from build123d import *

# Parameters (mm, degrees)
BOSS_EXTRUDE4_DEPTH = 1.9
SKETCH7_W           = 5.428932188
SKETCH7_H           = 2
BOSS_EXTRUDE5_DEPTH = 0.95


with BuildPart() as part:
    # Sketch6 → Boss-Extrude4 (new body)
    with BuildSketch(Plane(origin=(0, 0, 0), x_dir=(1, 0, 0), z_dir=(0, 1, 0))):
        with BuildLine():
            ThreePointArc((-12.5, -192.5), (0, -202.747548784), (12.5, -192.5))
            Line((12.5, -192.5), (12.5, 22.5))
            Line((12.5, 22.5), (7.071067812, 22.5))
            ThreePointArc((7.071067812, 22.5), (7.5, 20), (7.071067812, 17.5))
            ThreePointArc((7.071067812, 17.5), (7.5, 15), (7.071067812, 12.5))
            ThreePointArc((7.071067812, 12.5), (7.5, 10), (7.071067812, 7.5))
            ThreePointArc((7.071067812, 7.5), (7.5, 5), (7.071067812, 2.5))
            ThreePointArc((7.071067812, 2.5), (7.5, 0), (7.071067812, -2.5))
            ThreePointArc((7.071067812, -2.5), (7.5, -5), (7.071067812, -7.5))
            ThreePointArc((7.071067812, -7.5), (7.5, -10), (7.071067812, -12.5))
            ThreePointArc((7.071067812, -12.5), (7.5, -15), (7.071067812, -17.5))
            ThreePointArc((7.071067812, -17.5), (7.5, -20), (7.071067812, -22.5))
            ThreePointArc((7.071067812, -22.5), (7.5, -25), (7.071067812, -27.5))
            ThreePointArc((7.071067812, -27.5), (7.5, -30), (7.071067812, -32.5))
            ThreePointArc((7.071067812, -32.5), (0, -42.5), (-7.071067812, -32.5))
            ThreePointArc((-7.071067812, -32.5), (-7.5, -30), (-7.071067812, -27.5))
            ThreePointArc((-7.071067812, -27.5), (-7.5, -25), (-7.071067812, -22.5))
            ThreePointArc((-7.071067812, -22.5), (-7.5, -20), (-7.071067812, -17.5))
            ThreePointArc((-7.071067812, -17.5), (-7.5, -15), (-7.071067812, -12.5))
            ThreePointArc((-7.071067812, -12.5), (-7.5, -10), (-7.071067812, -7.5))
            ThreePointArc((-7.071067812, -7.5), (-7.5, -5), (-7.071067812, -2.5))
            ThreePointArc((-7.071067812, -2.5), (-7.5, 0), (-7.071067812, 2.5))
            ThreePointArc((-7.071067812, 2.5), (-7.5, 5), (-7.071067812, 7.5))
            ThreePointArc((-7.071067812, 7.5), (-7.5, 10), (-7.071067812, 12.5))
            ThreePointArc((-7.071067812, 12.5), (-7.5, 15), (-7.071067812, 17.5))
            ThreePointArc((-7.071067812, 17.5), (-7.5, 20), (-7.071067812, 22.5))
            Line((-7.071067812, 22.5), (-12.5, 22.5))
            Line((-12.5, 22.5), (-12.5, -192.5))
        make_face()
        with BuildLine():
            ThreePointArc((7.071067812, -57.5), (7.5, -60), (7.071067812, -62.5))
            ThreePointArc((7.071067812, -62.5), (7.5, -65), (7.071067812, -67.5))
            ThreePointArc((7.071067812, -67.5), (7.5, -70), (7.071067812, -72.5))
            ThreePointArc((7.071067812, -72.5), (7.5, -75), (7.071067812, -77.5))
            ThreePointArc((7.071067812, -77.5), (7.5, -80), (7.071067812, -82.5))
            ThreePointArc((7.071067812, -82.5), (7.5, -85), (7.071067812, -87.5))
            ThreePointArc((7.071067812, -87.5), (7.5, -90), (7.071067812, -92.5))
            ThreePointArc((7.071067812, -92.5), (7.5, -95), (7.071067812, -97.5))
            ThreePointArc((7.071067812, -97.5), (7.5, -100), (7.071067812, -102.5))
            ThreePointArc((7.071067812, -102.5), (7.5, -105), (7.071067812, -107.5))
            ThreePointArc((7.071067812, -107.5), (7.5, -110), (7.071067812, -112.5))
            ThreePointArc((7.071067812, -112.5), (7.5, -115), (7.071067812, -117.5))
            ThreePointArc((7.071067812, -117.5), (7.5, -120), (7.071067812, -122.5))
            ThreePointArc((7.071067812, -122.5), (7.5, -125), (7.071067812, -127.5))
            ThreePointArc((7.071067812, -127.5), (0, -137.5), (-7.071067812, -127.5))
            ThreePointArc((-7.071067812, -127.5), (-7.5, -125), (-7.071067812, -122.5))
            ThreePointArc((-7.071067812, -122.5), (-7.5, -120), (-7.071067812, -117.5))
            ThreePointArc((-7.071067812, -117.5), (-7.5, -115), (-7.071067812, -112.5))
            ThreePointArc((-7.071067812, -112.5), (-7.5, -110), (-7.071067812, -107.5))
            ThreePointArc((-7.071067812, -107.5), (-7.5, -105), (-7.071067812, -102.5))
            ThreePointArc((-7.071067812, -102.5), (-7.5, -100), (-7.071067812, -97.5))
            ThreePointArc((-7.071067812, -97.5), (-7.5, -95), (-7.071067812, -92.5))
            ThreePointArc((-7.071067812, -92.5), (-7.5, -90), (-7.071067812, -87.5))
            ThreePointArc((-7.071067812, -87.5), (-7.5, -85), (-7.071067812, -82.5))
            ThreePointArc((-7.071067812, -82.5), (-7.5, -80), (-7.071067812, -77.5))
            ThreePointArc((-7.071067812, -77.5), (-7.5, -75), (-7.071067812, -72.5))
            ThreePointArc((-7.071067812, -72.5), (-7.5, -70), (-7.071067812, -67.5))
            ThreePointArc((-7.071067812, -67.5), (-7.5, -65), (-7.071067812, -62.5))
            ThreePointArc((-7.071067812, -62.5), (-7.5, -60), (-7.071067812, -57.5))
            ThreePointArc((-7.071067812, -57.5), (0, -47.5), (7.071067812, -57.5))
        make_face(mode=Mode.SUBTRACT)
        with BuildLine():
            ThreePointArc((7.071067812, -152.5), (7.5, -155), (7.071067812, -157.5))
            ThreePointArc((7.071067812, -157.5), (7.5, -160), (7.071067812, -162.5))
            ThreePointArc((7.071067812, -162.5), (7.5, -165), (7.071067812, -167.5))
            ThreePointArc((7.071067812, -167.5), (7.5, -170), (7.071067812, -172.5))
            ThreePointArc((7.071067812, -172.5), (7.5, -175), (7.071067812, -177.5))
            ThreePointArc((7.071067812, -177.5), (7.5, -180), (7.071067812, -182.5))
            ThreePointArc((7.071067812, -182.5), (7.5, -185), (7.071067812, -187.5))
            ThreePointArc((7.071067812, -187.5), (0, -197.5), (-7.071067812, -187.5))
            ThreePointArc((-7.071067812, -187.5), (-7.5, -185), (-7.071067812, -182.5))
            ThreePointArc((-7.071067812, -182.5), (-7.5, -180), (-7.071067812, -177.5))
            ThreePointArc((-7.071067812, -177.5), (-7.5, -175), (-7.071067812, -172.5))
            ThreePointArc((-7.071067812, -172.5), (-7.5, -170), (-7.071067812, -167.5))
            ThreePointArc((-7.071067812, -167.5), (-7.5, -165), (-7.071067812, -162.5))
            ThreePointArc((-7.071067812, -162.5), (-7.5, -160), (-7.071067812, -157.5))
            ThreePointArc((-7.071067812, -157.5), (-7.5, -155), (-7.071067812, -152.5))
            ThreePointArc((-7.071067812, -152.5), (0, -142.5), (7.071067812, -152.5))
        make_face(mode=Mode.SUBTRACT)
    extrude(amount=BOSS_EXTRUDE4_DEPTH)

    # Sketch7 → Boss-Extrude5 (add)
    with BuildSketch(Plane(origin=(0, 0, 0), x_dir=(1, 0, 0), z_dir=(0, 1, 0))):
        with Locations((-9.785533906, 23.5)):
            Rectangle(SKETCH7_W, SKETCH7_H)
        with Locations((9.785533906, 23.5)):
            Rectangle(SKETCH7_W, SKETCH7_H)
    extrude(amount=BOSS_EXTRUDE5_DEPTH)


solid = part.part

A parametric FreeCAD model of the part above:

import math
import FreeCAD as App
import Part
import Sketcher

V = App.Vector
Q = App.Units.Quantity

doc = App.newDocument("Part")
body = doc.addObject("PartDesign::Body", "Body")

# Sketch on XZ plane
sketch1 = body.newObject("Sketcher::SketchObject", "Sketch")
sketch1.AttachmentSupport = (doc.getObject("XZ_Plane"), [""])
sketch1.MapMode = "FlatFace"
sketch1.addGeometry(Part.ArcOfCircle(Part.Circle(V(0, 190, 0), V(0, 0, 1), 12.747549), math.radians(11.309932), math.radians(168.690068)), False)
sketch1.addGeometry(Part.LineSegment(V(12.5, 192.5, 0), V(12.5, -22.5, 0)), False)
sketch1.addGeometry(Part.LineSegment(V(12.5, -22.5, 0), V(7.071068, -22.5, 0)), False)
sketch1.addGeometry(Part.ArcOfCircle(Part.Circle(V(0, -20, 0), V(0, 0, 1), 7.5), math.radians(-19.471221), math.radians(19.471221)), False)
sketch1.addGeometry(Part.ArcOfCircle(Part.Circle(V(0, -15, 0), V(0, 0, 1), 7.5), math.radians(-19.471221), math.radians(19.471221)), False)
sketch1.addGeometry(Part.ArcOfCircle(Part.Circle(V(0, -10, 0), V(0, 0, 1), 7.5), math.radians(-19.471221), math.radians(19.471221)), False)
sketch1.addGeometry(Part.ArcOfCircle(Part.Circle(V(0, -5, 0), V(0, 0, 1), 7.5), math.radians(-19.471221), math.radians(19.471221)), False)
sketch1.addGeometry(Part.ArcOfCircle(Part.Circle(V(0, 0, 0), V(0, 0, 1), 7.5), math.radians(-19.471221), math.radians(19.471221)), False)
sketch1.addGeometry(Part.ArcOfCircle(Part.Circle(V(0, 5, 0), V(0, 0, 1), 7.5), math.radians(-19.471221), math.radians(19.471221)), False)
sketch1.addGeometry(Part.ArcOfCircle(Part.Circle(V(0, 10, 0), V(0, 0, 1), 7.5), math.radians(-19.471221), math.radians(19.471221)), False)
sketch1.addGeometry(Part.ArcOfCircle(Part.Circle(V(0, 15, 0), V(0, 0, 1), 7.5), math.radians(-19.471221), math.radians(19.471221)), False)
sketch1.addGeometry(Part.ArcOfCircle(Part.Circle(V(0, 20, 0), V(0, 0, 1), 7.5), math.radians(-19.471221), math.radians(19.471221)), False)
sketch1.addGeometry(Part.ArcOfCircle(Part.Circle(V(0, 25, 0), V(0, 0, 1), 7.5), math.radians(-19.471221), math.radians(19.471221)), False)
sketch1.addGeometry(Part.ArcOfCircle(Part.Circle(V(0, 30, 0), V(0, 0, 1), 7.5), math.radians(-19.471221), math.radians(19.471221)), False)
sketch1.addGeometry(Part.ArcOfCircle(Part.Circle(V(0, 35, 0), V(0, 0, 1), 7.5), math.radians(-19.471221), math.radians(199.471221)), False)
sketch1.addGeometry(Part.ArcOfCircle(Part.Circle(V(0, 30, 0), V(0, 0, 1), 7.5), math.radians(160.528779), math.radians(199.471221)), False)
sketch1.addGeometry(Part.ArcOfCircle(Part.Circle(V(0, 25, 0), V(0, 0, 1), 7.5), math.radians(160.528779), math.radians(199.471221)), False)
sketch1.addGeometry(Part.ArcOfCircle(Part.Circle(V(0, 20, 0), V(0, 0, 1), 7.5), math.radians(160.528779), math.radians(199.471221)), False)
sketch1.addGeometry(Part.ArcOfCircle(Part.Circle(V(0, 15, 0), V(0, 0, 1), 7.5), math.radians(160.528779), math.radians(199.471221)), False)
sketch1.addGeometry(Part.ArcOfCircle(Part.Circle(V(0, 10, 0), V(0, 0, 1), 7.5), math.radians(160.528779), math.radians(199.471221)), False)
sketch1.addGeometry(Part.ArcOfCircle(Part.Circle(V(0, 5, 0), V(0, 0, 1), 7.5), math.radians(160.528779), math.radians(199.471221)), False)
sketch1.addGeometry(Part.ArcOfCircle(Part.Circle(V(0, 0, 0), V(0, 0, 1), 7.5), math.radians(160.528779), math.radians(199.471221)), False)
sketch1.addGeometry(Part.ArcOfCircle(Part.Circle(V(0, -5, 0), V(0, 0, 1), 7.5), math.radians(160.528779), math.radians(199.471221)), False)
sketch1.addGeometry(Part.ArcOfCircle(Part.Circle(V(0, -10, 0), V(0, 0, 1), 7.5), math.radians(160.528779), math.radians(199.471221)), False)
sketch1.addGeometry(Part.ArcOfCircle(Part.Circle(V(0, -15, 0), V(0, 0, 1), 7.5), math.radians(160.528779), math.radians(199.471221)), False)
sketch1.addGeometry(Part.ArcOfCircle(Part.Circle(V(0, -20, 0), V(0, 0, 1), 7.5), math.radians(160.528779), math.radians(199.471221)), False)
sketch1.addGeometry(Part.LineSegment(V(-7.071068, -22.5, 0), V(-12.5, -22.5, 0)), False)
sketch1.addGeometry(Part.LineSegment(V(-12.5, -22.5, 0), V(-12.5, 192.5, 0)), False)
sketch1.addGeometry(Part.ArcOfCircle(Part.Circle(V(0, 150, 0), V(0, 0, 1), 7.5), math.radians(160.528779), math.radians(379.471221)), False)
sketch1.addGeometry(Part.ArcOfCircle(Part.Circle(V(0, 155, 0), V(0, 0, 1), 7.5), math.radians(-19.471221), math.radians(19.471221)), False)
sketch1.addGeometry(Part.ArcOfCircle(Part.Circle(V(0, 160, 0), V(0, 0, 1), 7.5), math.radians(-19.471221), math.radians(19.471221)), False)
sketch1.addGeometry(Part.ArcOfCircle(Part.Circle(V(0, 165, 0), V(0, 0, 1), 7.5), math.radians(-19.471221), math.radians(19.471221)), False)
sketch1.addGeometry(Part.ArcOfCircle(Part.Circle(V(0, 170, 0), V(0, 0, 1), 7.5), math.radians(-19.471221), math.radians(19.471221)), False)
sketch1.addGeometry(Part.ArcOfCircle(Part.Circle(V(0, 175, 0), V(0, 0, 1), 7.5), math.radians(-19.471221), math.radians(19.471221)), False)
sketch1.addGeometry(Part.ArcOfCircle(Part.Circle(V(0, 180, 0), V(0, 0, 1), 7.5), math.radians(-19.471221), math.radians(19.471221)), False)
sketch1.addGeometry(Part.ArcOfCircle(Part.Circle(V(0, 185, 0), V(0, 0, 1), 7.5), math.radians(-19.471221), math.radians(19.471221)), False)
sketch1.addGeometry(Part.ArcOfCircle(Part.Circle(V(0, 190, 0), V(0, 0, 1), 7.5), math.radians(-19.471221), math.radians(199.471221)), False)
sketch1.addGeometry(Part.ArcOfCircle(Part.Circle(V(0, 185, 0), V(0, 0, 1), 7.5), math.radians(160.528779), math.radians(199.471221)), False)
sketch1.addGeometry(Part.ArcOfCircle(Part.Circle(V(0, 180, 0), V(0, 0, 1), 7.5), math.radians(160.528779), math.radians(199.471221)), False)
sketch1.addGeometry(Part.ArcOfCircle(Part.Circle(V(0, 175, 0), V(0, 0, 1), 7.5), math.radians(160.528779), math.radians(199.471221)), False)
sketch1.addGeometry(Part.ArcOfCircle(Part.Circle(V(0, 170, 0), V(0, 0, 1), 7.5), math.radians(160.528779), math.radians(199.471221)), False)
sketch1.addGeometry(Part.ArcOfCircle(Part.Circle(V(0, 165, 0), V(0, 0, 1), 7.5), math.radians(160.528779), math.radians(199.471221)), False)
sketch1.addGeometry(Part.ArcOfCircle(Part.Circle(V(0, 160, 0), V(0, 0, 1), 7.5), math.radians(160.528779), math.radians(199.471221)), False)
sketch1.addGeometry(Part.ArcOfCircle(Part.Circle(V(0, 155, 0), V(0, 0, 1), 7.5), math.radians(160.528779), math.radians(199.471221)), False)
sketch1.addGeometry(Part.ArcOfCircle(Part.Circle(V(0, 55, 0), V(0, 0, 1), 7.5), math.radians(160.528779), math.radians(379.471221)), False)
sketch1.addGeometry(Part.ArcOfCircle(Part.Circle(V(0, 60, 0), V(0, 0, 1), 7.5), math.radians(-19.471221), math.radians(19.471221)), False)
sketch1.addGeometry(Part.ArcOfCircle(Part.Circle(V(0, 65, 0), V(0, 0, 1), 7.5), math.radians(-19.471221), math.radians(19.471221)), False)
sketch1.addGeometry(Part.ArcOfCircle(Part.Circle(V(0, 70, 0), V(0, 0, 1), 7.5), math.radians(-19.471221), math.radians(19.471221)), False)
sketch1.addGeometry(Part.ArcOfCircle(Part.Circle(V(0, 75, 0), V(0, 0, 1), 7.5), math.radians(-19.471221), math.radians(19.471221)), False)
sketch1.addGeometry(Part.ArcOfCircle(Part.Circle(V(0, 80, 0), V(0, 0, 1), 7.5), math.radians(-19.471221), math.radians(19.471221)), False)
sketch1.addGeometry(Part.ArcOfCircle(Part.Circle(V(0, 85, 0), V(0, 0, 1), 7.5), math.radians(-19.471221), math.radians(19.471221)), False)
sketch1.addGeometry(Part.ArcOfCircle(Part.Circle(V(0, 90, 0), V(0, 0, 1), 7.5), math.radians(-19.471221), math.radians(19.471221)), False)
sketch1.addGeometry(Part.ArcOfCircle(Part.Circle(V(0, 95, 0), V(0, 0, 1), 7.5), math.radians(-19.471221), math.radians(19.471221)), False)
sketch1.addGeometry(Part.ArcOfCircle(Part.Circle(V(0, 100, 0), V(0, 0, 1), 7.5), math.radians(-19.471221), math.radians(19.471221)), False)
sketch1.addGeometry(Part.ArcOfCircle(Part.Circle(V(0, 105, 0), V(0, 0, 1), 7.5), math.radians(-19.471221), math.radians(19.471221)), False)
sketch1.addGeometry(Part.ArcOfCircle(Part.Circle(V(0, 110, 0), V(0, 0, 1), 7.5), math.radians(-19.471221), math.radians(19.471221)), False)
sketch1.addGeometry(Part.ArcOfCircle(Part.Circle(V(0, 115, 0), V(0, 0, 1), 7.5), math.radians(-19.471221), math.radians(19.471221)), False)
sketch1.addGeometry(Part.ArcOfCircle(Part.Circle(V(0, 120, 0), V(0, 0, 1), 7.5), math.radians(-19.471221), math.radians(19.471221)), False)
sketch1.addGeometry(Part.ArcOfCircle(Part.Circle(V(0, 125, 0), V(0, 0, 1), 7.5), math.radians(-19.471221), math.radians(19.471221)), False)
sketch1.addGeometry(Part.ArcOfCircle(Part.Circle(V(0, 130, 0), V(0, 0, 1), 7.5), math.radians(-19.471221), math.radians(199.471221)), False)
sketch1.addGeometry(Part.ArcOfCircle(Part.Circle(V(0, 125, 0), V(0, 0, 1), 7.5), math.radians(160.528779), math.radians(199.471221)), False)
sketch1.addGeometry(Part.ArcOfCircle(Part.Circle(V(0, 120, 0), V(0, 0, 1), 7.5), math.radians(160.528779), math.radians(199.471221)), False)
sketch1.addGeometry(Part.ArcOfCircle(Part.Circle(V(0, 115, 0), V(0, 0, 1), 7.5), math.radians(160.528779), math.radians(199.471221)), False)
sketch1.addGeometry(Part.ArcOfCircle(Part.Circle(V(0, 110, 0), V(0, 0, 1), 7.5), math.radians(160.528779), math.radians(199.471221)), False)
sketch1.addGeometry(Part.ArcOfCircle(Part.Circle(V(0, 105, 0), V(0, 0, 1), 7.5), math.radians(160.528779), math.radians(199.471221)), False)
sketch1.addGeometry(Part.ArcOfCircle(Part.Circle(V(0, 100, 0), V(0, 0, 1), 7.5), math.radians(160.528779), math.radians(199.471221)), False)
sketch1.addGeometry(Part.ArcOfCircle(Part.Circle(V(0, 95, 0), V(0, 0, 1), 7.5), math.radians(160.528779), math.radians(199.471221)), False)
sketch1.addGeometry(Part.ArcOfCircle(Part.Circle(V(0, 90, 0), V(0, 0, 1), 7.5), math.radians(160.528779), math.radians(199.471221)), False)
sketch1.addGeometry(Part.ArcOfCircle(Part.Circle(V(0, 85, 0), V(0, 0, 1), 7.5), math.radians(160.528779), math.radians(199.471221)), False)
sketch1.addGeometry(Part.ArcOfCircle(Part.Circle(V(0, 80, 0), V(0, 0, 1), 7.5), math.radians(160.528779), math.radians(199.471221)), False)
sketch1.addGeometry(Part.ArcOfCircle(Part.Circle(V(0, 75, 0), V(0, 0, 1), 7.5), math.radians(160.528779), math.radians(199.471221)), False)
sketch1.addGeometry(Part.ArcOfCircle(Part.Circle(V(0, 70, 0), V(0, 0, 1), 7.5), math.radians(160.528779), math.radians(199.471221)), False)
sketch1.addGeometry(Part.ArcOfCircle(Part.Circle(V(0, 65, 0), V(0, 0, 1), 7.5), math.radians(160.528779), math.radians(199.471221)), False)
sketch1.addGeometry(Part.ArcOfCircle(Part.Circle(V(0, 60, 0), V(0, 0, 1), 7.5), math.radians(160.528779), math.radians(199.471221)), False)
sketch1.addConstraint(Sketcher.Constraint("Coincident", 0, 1, 1, 1))
sketch1.addConstraint(Sketcher.Constraint("Coincident", 1, 2, 2, 1))
sketch1.addConstraint(Sketcher.Constraint("Coincident", 2, 2, 3, 1))
sketch1.addConstraint(Sketcher.Constraint("Coincident", 3, 2, 4, 1))
sketch1.addConstraint(Sketcher.Constraint("Coincident", 4, 2, 5, 1))
sketch1.addConstraint(Sketcher.Constraint("Coincident", 5, 2, 6, 1))
sketch1.addConstraint(Sketcher.Constraint("Coincident", 6, 2, 7, 1))
sketch1.addConstraint(Sketcher.Constraint("Coincident", 7, 2, 8, 1))
sketch1.addConstraint(Sketcher.Constraint("Coincident", 8, 2, 9, 1))
sketch1.addConstraint(Sketcher.Constraint("Coincident", 9, 2, 10, 1))
sketch1.addConstraint(Sketcher.Constraint("Coincident", 10, 2, 11, 1))
sketch1.addConstraint(Sketcher.Constraint("Coincident", 11, 2, 12, 1))
sketch1.addConstraint(Sketcher.Constraint("Coincident", 12, 2, 13, 1))
sketch1.addConstraint(Sketcher.Constraint("Coincident", 13, 2, 14, 1))
sketch1.addConstraint(Sketcher.Constraint("Coincident", 14, 2, 15, 1))
sketch1.addConstraint(Sketcher.Constraint("Coincident", 15, 2, 16, 1))
sketch1.addConstraint(Sketcher.Constraint("Coincident", 16, 2, 17, 1))
sketch1.addConstraint(Sketcher.Constraint("Coincident", 17, 2, 18, 1))
sketch1.addConstraint(Sketcher.Constraint("Coincident", 18, 2, 19, 1))
sketch1.addConstraint(Sketcher.Constraint("Coincident", 19, 2, 20, 1))
sketch1.addConstraint(Sketcher.Constraint("Coincident", 20, 2, 21, 1))
sketch1.addConstraint(Sketcher.Constraint("Coincident", 21, 2, 22, 1))
sketch1.addConstraint(Sketcher.Constraint("Coincident", 22, 2, 23, 1))
sketch1.addConstraint(Sketcher.Constraint("Coincident", 23, 2, 24, 1))
sketch1.addConstraint(Sketcher.Constraint("Coincident", 24, 2, 25, 1))
sketch1.addConstraint(Sketcher.Constraint("Coincident", 25, 2, 26, 1))
sketch1.addConstraint(Sketcher.Constraint("Coincident", 26, 2, 27, 1))
sketch1.addConstraint(Sketcher.Constraint("Coincident", 27, 2, 0, 2))
sketch1.addConstraint(Sketcher.Constraint("Coincident", 28, 2, 29, 1))
sketch1.addConstraint(Sketcher.Constraint("Coincident", 29, 2, 30, 1))
sketch1.addConstraint(Sketcher.Constraint("Coincident", 30, 2, 31, 1))
sketch1.addConstraint(Sketcher.Constraint("Coincident", 31, 2, 32, 1))
sketch1.addConstraint(Sketcher.Constraint("Coincident", 32, 2, 33, 1))
sketch1.addConstraint(Sketcher.Constraint("Coincident", 33, 2, 34, 1))
sketch1.addConstraint(Sketcher.Constraint("Coincident", 34, 2, 35, 1))
sketch1.addConstraint(Sketcher.Constraint("Coincident", 35, 2, 36, 1))
sketch1.addConstraint(Sketcher.Constraint("Coincident", 36, 2, 37, 1))
sketch1.addConstraint(Sketcher.Constraint("Coincident", 37, 2, 38, 1))
sketch1.addConstraint(Sketcher.Constraint("Coincident", 38, 2, 39, 1))
sketch1.addConstraint(Sketcher.Constraint("Coincident", 39, 2, 40, 1))
sketch1.addConstraint(Sketcher.Constraint("Coincident", 40, 2, 41, 1))
sketch1.addConstraint(Sketcher.Constraint("Coincident", 41, 2, 42, 1))
sketch1.addConstraint(Sketcher.Constraint("Coincident", 42, 2, 43, 1))
sketch1.addConstraint(Sketcher.Constraint("Coincident", 43, 2, 28, 1))
sketch1.addConstraint(Sketcher.Constraint("Coincident", 44, 2, 45, 1))
sketch1.addConstraint(Sketcher.Constraint("Coincident", 45, 2, 46, 1))
sketch1.addConstraint(Sketcher.Constraint("Coincident", 46, 2, 47, 1))
sketch1.addConstraint(Sketcher.Constraint("Coincident", 47, 2, 48, 1))
sketch1.addConstraint(Sketcher.Constraint("Coincident", 48, 2, 49, 1))
sketch1.addConstraint(Sketcher.Constraint("Coincident", 49, 2, 50, 1))
sketch1.addConstraint(Sketcher.Constraint("Coincident", 50, 2, 51, 1))
sketch1.addConstraint(Sketcher.Constraint("Coincident", 51, 2, 52, 1))
sketch1.addConstraint(Sketcher.Constraint("Coincident", 52, 2, 53, 1))
sketch1.addConstraint(Sketcher.Constraint("Coincident", 53, 2, 54, 1))
sketch1.addConstraint(Sketcher.Constraint("Coincident", 54, 2, 55, 1))
sketch1.addConstraint(Sketcher.Constraint("Coincident", 55, 2, 56, 1))
sketch1.addConstraint(Sketcher.Constraint("Coincident", 56, 2, 57, 1))
sketch1.addConstraint(Sketcher.Constraint("Coincident", 57, 2, 58, 1))
sketch1.addConstraint(Sketcher.Constraint("Coincident", 58, 2, 59, 1))
sketch1.addConstraint(Sketcher.Constraint("Coincident", 59, 2, 60, 1))
sketch1.addConstraint(Sketcher.Constraint("Coincident", 60, 2, 61, 1))
sketch1.addConstraint(Sketcher.Constraint("Coincident", 61, 2, 62, 1))
sketch1.addConstraint(Sketcher.Constraint("Coincident", 62, 2, 63, 1))
sketch1.addConstraint(Sketcher.Constraint("Coincident", 63, 2, 64, 1))
sketch1.addConstraint(Sketcher.Constraint("Coincident", 64, 2, 65, 1))
sketch1.addConstraint(Sketcher.Constraint("Coincident", 65, 2, 66, 1))
sketch1.addConstraint(Sketcher.Constraint("Coincident", 66, 2, 67, 1))
sketch1.addConstraint(Sketcher.Constraint("Coincident", 67, 2, 68, 1))
sketch1.addConstraint(Sketcher.Constraint("Coincident", 68, 2, 69, 1))
sketch1.addConstraint(Sketcher.Constraint("Coincident", 69, 2, 70, 1))
sketch1.addConstraint(Sketcher.Constraint("Coincident", 70, 2, 71, 1))
sketch1.addConstraint(Sketcher.Constraint("Coincident", 71, 2, 72, 1))
sketch1.addConstraint(Sketcher.Constraint("Coincident", 72, 2, 73, 1))
sketch1.addConstraint(Sketcher.Constraint("Coincident", 73, 2, 44, 1))
sketch1.addConstraint(Sketcher.Constraint("Vertical", 1))
sketch1.addConstraint(Sketcher.Constraint("Horizontal", 2))
sketch1.addConstraint(Sketcher.Constraint("Horizontal", 26))
sketch1.addConstraint(Sketcher.Constraint("Vertical", 27))
sketch1.addConstraint(Sketcher.Constraint("Coincident", 7, 3, -1, 1))
sketch1.addConstraint(Sketcher.Constraint("Coincident", 21, 3, -1, 1))
sketch1.addConstraint(Sketcher.Constraint("Coincident", 15, 3, 13, 3))
sketch1.addConstraint(Sketcher.Constraint("Coincident", 16, 3, 12, 3))
sketch1.addConstraint(Sketcher.Constraint("Coincident", 17, 3, 11, 3))
sketch1.addConstraint(Sketcher.Constraint("Coincident", 18, 3, 10, 3))
sketch1.addConstraint(Sketcher.Constraint("Coincident", 19, 3, 9, 3))
sketch1.addConstraint(Sketcher.Constraint("Coincident", 20, 3, 8, 3))
sketch1.addConstraint(Sketcher.Constraint("Coincident", 22, 3, 6, 3))
sketch1.addConstraint(Sketcher.Constraint("Coincident", 23, 3, 5, 3))
sketch1.addConstraint(Sketcher.Constraint("Coincident", 24, 3, 4, 3))
sketch1.addConstraint(Sketcher.Constraint("Coincident", 25, 3, 3, 3))
sketch1.addConstraint(Sketcher.Constraint("Coincident", 36, 3, 0, 3))
sketch1.addConstraint(Sketcher.Constraint("Coincident", 37, 3, 35, 3))
sketch1.addConstraint(Sketcher.Constraint("Coincident", 38, 3, 34, 3))
sketch1.addConstraint(Sketcher.Constraint("Coincident", 39, 3, 33, 3))
sketch1.addConstraint(Sketcher.Constraint("Coincident", 40, 3, 32, 3))
sketch1.addConstraint(Sketcher.Constraint("Coincident", 41, 3, 31, 3))
sketch1.addConstraint(Sketcher.Constraint("Coincident", 42, 3, 30, 3))
sketch1.addConstraint(Sketcher.Constraint("Coincident", 43, 3, 29, 3))
sketch1.addConstraint(Sketcher.Constraint("Coincident", 60, 3, 58, 3))
sketch1.addConstraint(Sketcher.Constraint("Coincident", 61, 3, 57, 3))
sketch1.addConstraint(Sketcher.Constraint("Coincident", 62, 3, 56, 3))
sketch1.addConstraint(Sketcher.Constraint("Coincident", 63, 3, 55, 3))
sketch1.addConstraint(Sketcher.Constraint("Coincident", 64, 3, 54, 3))
sketch1.addConstraint(Sketcher.Constraint("Coincident", 65, 3, 53, 3))
sketch1.addConstraint(Sketcher.Constraint("Coincident", 66, 3, 52, 3))
sketch1.addConstraint(Sketcher.Constraint("Coincident", 67, 3, 51, 3))
sketch1.addConstraint(Sketcher.Constraint("Coincident", 68, 3, 50, 3))
sketch1.addConstraint(Sketcher.Constraint("Coincident", 69, 3, 49, 3))
sketch1.addConstraint(Sketcher.Constraint("Coincident", 70, 3, 48, 3))
sketch1.addConstraint(Sketcher.Constraint("Coincident", 71, 3, 47, 3))
sketch1.addConstraint(Sketcher.Constraint("Coincident", 72, 3, 46, 3))
sketch1.addConstraint(Sketcher.Constraint("Coincident", 73, 3, 45, 3))
sketch1.addConstraint(Sketcher.Constraint("Equal", 3, 4))
sketch1.addConstraint(Sketcher.Constraint("Equal", 4, 5))
sketch1.addConstraint(Sketcher.Constraint("Equal", 5, 6))
sketch1.addConstraint(Sketcher.Constraint("Equal", 6, 7))
sketch1.addConstraint(Sketcher.Constraint("Equal", 7, 8))
sketch1.addConstraint(Sketcher.Constraint("Equal", 8, 9))
sketch1.addConstraint(Sketcher.Constraint("Equal", 9, 10))
sketch1.addConstraint(Sketcher.Constraint("Equal", 10, 11))
sketch1.addConstraint(Sketcher.Constraint("Equal", 11, 12))
sketch1.addConstraint(Sketcher.Constraint("Equal", 12, 13))
sketch1.addConstraint(Sketcher.Constraint("Equal", 13, 14))
sketch1.addConstraint(Sketcher.Constraint("Equal", 14, 15))
sketch1.addConstraint(Sketcher.Constraint("Equal", 15, 16))
sketch1.addConstraint(Sketcher.Constraint("Equal", 16, 17))
sketch1.addConstraint(Sketcher.Constraint("Equal", 17, 18))
sketch1.addConstraint(Sketcher.Constraint("Equal", 18, 19))
sketch1.addConstraint(Sketcher.Constraint("Equal", 19, 20))
sketch1.addConstraint(Sketcher.Constraint("Equal", 20, 21))
sketch1.addConstraint(Sketcher.Constraint("Equal", 21, 22))
sketch1.addConstraint(Sketcher.Constraint("Equal", 22, 23))
sketch1.addConstraint(Sketcher.Constraint("Equal", 23, 24))
sketch1.addConstraint(Sketcher.Constraint("Equal", 24, 25))
sketch1.addConstraint(Sketcher.Constraint("Equal", 25, 28))
sketch1.addConstraint(Sketcher.Constraint("Equal", 28, 29))
sketch1.addConstraint(Sketcher.Constraint("Equal", 29, 30))
sketch1.addConstraint(Sketcher.Constraint("Equal", 30, 31))
sketch1.addConstraint(Sketcher.Constraint("Equal", 31, 32))
sketch1.addConstraint(Sketcher.Constraint("Equal", 32, 33))
sketch1.addConstraint(Sketcher.Constraint("Equal", 33, 34))
sketch1.addConstraint(Sketcher.Constraint("Equal", 34, 35))
sketch1.addConstraint(Sketcher.Constraint("Equal", 35, 36))
sketch1.addConstraint(Sketcher.Constraint("Equal", 36, 37))
sketch1.addConstraint(Sketcher.Constraint("Equal", 37, 38))
sketch1.addConstraint(Sketcher.Constraint("Equal", 38, 39))
sketch1.addConstraint(Sketcher.Constraint("Equal", 39, 40))
sketch1.addConstraint(Sketcher.Constraint("Equal", 40, 41))
sketch1.addConstraint(Sketcher.Constraint("Equal", 41, 42))
sketch1.addConstraint(Sketcher.Constraint("Equal", 42, 43))
sketch1.addConstraint(Sketcher.Constraint("Equal", 43, 44))
sketch1.addConstraint(Sketcher.Constraint("Equal", 44, 45))
sketch1.addConstraint(Sketcher.Constraint("Equal", 45, 46))
sketch1.addConstraint(Sketcher.Constraint("Equal", 46, 47))
sketch1.addConstraint(Sketcher.Constraint("Equal", 47, 48))
sketch1.addConstraint(Sketcher.Constraint("Equal", 48, 49))
sketch1.addConstraint(Sketcher.Constraint("Equal", 49, 50))
sketch1.addConstraint(Sketcher.Constraint("Equal", 50, 51))
sketch1.addConstraint(Sketcher.Constraint("Equal", 51, 52))
sketch1.addConstraint(Sketcher.Constraint("Equal", 52, 53))
sketch1.addConstraint(Sketcher.Constraint("Equal", 53, 54))
sketch1.addConstraint(Sketcher.Constraint("Equal", 54, 55))
sketch1.addConstraint(Sketcher.Constraint("Equal", 55, 56))
sketch1.addConstraint(Sketcher.Constraint("Equal", 56, 57))
sketch1.addConstraint(Sketcher.Constraint("Equal", 57, 58))
sketch1.addConstraint(Sketcher.Constraint("Equal", 58, 59))
sketch1.addConstraint(Sketcher.Constraint("Equal", 59, 60))
sketch1.addConstraint(Sketcher.Constraint("Equal", 60, 61))
sketch1.addConstraint(Sketcher.Constraint("Equal", 61, 62))
sketch1.addConstraint(Sketcher.Constraint("Equal", 62, 63))
sketch1.addConstraint(Sketcher.Constraint("Equal", 63, 64))
sketch1.addConstraint(Sketcher.Constraint("Equal", 64, 65))
sketch1.addConstraint(Sketcher.Constraint("Equal", 65, 66))
sketch1.addConstraint(Sketcher.Constraint("Equal", 66, 67))
sketch1.addConstraint(Sketcher.Constraint("Equal", 67, 68))
sketch1.addConstraint(Sketcher.Constraint("Equal", 68, 69))
sketch1.addConstraint(Sketcher.Constraint("Equal", 69, 70))
sketch1.addConstraint(Sketcher.Constraint("Equal", 70, 71))
sketch1.addConstraint(Sketcher.Constraint("Equal", 71, 72))
sketch1.addConstraint(Sketcher.Constraint("Equal", 72, 73))
sketch1.addConstraint(Sketcher.Constraint("Symmetric", 6, 3, 8, 3, -1, 1))
sketch1.addConstraint(Sketcher.Constraint("Symmetric", 5, 3, 9, 3, -1, 1))
sketch1.addConstraint(Sketcher.Constraint("Symmetric", 4, 3, 10, 3, -1, 1))
sketch1.addConstraint(Sketcher.Constraint("Symmetric", 3, 3, 11, 3, -1, 1))
sketch1.addConstraint(Sketcher.Constraint("Symmetric", 13, 2, 14, 2, -2))
sketch1.addConstraint(Sketcher.Constraint("Symmetric", 11, 2, 16, 2, -2))
sketch1.addConstraint(Sketcher.Constraint("Symmetric", 9, 2, 18, 2, -2))
sketch1.addConstraint(Sketcher.Constraint("Symmetric", 1, 2, 26, 2, -2))
sketch1.addConstraint(Sketcher.Constraint("Symmetric", 35, 2, 36, 2, -2))
sketch1.addConstraint(Sketcher.Constraint("Symmetric", 33, 2, 38, 2, -2))
sketch1.addConstraint(Sketcher.Constraint("Symmetric", 31, 2, 40, 2, -2))
sketch1.addConstraint(Sketcher.Constraint("Symmetric", 29, 2, 42, 2, -2))
sketch1.addConstraint(Sketcher.Constraint("Symmetric", 58, 2, 59, 2, -2))
sketch1.addConstraint(Sketcher.Constraint("Symmetric", 56, 2, 61, 2, -2))
sketch1.addConstraint(Sketcher.Constraint("Symmetric", 54, 2, 63, 2, -2))
sketch1.addConstraint(Sketcher.Constraint("Symmetric", 52, 2, 65, 2, -2))
sketch1.addConstraint(Sketcher.Constraint("Symmetric", 50, 2, 67, 2, -2))
sketch1.addConstraint(Sketcher.Constraint("Symmetric", 48, 2, 69, 2, -2))
sketch1.addConstraint(Sketcher.Constraint("Symmetric", 46, 2, 71, 2, -2))
sketch1.addConstraint(Sketcher.Constraint("Symmetric", 44, 2, 73, 2, -2))
sketch1.addConstraint(Sketcher.Constraint("PointOnObject", 6, 3, -2))
sketch1.addConstraint(Sketcher.Constraint("PointOnObject", 28, 3, -2))
sketch1.addConstraint(Sketcher.Constraint("Vertical", 2, 2, 3, 2))
sketch1.addConstraint(Sketcher.Constraint("Vertical", 3, 2, 4, 2))
sketch1.addConstraint(Sketcher.Constraint("Vertical", 4, 2, 5, 2))
sketch1.addConstraint(Sketcher.Constraint("Vertical", 5, 2, 6, 2))
sketch1.addConstraint(Sketcher.Constraint("Vertical", 10, 2, 11, 2))
sketch1.addConstraint(Sketcher.Constraint("Vertical", 11, 2, 12, 2))
sketch1.addConstraint(Sketcher.Constraint("Vertical", 12, 2, 13, 2))
sketch1.addConstraint(Sketcher.Constraint("Vertical", 13, 2, 28, 2))
sketch1.addConstraint(Sketcher.Constraint("Vertical", 28, 2, 29, 2))
sketch1.addConstraint(Sketcher.Constraint("Vertical", 29, 2, 30, 2))
sketch1.addConstraint(Sketcher.Constraint("Vertical", 30, 2, 31, 2))
sketch1.addConstraint(Sketcher.Constraint("Vertical", 31, 2, 32, 2))
sketch1.addConstraint(Sketcher.Constraint("Vertical", 32, 2, 33, 2))
sketch1.addConstraint(Sketcher.Constraint("Vertical", 33, 2, 34, 2))
sketch1.addConstraint(Sketcher.Constraint("Vertical", 34, 2, 35, 2))
sketch1.addConstraint(Sketcher.Constraint("Vertical", 35, 2, 44, 2))
sketch1.addConstraint(Sketcher.Constraint("Vertical", 44, 2, 45, 2))
sketch1.addConstraint(Sketcher.Constraint("Vertical", 45, 2, 46, 2))
sketch1.addConstraint(Sketcher.Constraint("Vertical", 46, 2, 47, 2))
sketch1.addConstraint(Sketcher.Constraint("Vertical", 47, 2, 48, 2))
sketch1.addConstraint(Sketcher.Constraint("Vertical", 48, 2, 49, 2))
sketch1.addConstraint(Sketcher.Constraint("Vertical", 49, 2, 50, 2))
sketch1.addConstraint(Sketcher.Constraint("Vertical", 50, 2, 51, 2))
sketch1.addConstraint(Sketcher.Constraint("Vertical", 51, 2, 52, 2))
sketch1.addConstraint(Sketcher.Constraint("Vertical", 52, 2, 53, 2))
sketch1.addConstraint(Sketcher.Constraint("Vertical", 53, 2, 54, 2))
sketch1.addConstraint(Sketcher.Constraint("Vertical", 54, 2, 55, 2))
sketch1.addConstraint(Sketcher.Constraint("Vertical", 55, 2, 56, 2))
sketch1.addConstraint(Sketcher.Constraint("Vertical", 56, 2, 57, 2))
sketch1.addConstraint(Sketcher.Constraint("Vertical", 57, 2, 58, 2))
sketch1.addConstraint(Sketcher.Constraint("Radius", 3, Q("7.5 mm")))
sketch1.addConstraint(Sketcher.Constraint("DistanceY", 1, 2, 1, 1, Q("215 mm")))
sketch1.addConstraint(Sketcher.Constraint("DistanceY", -1, 1, 0, 3, Q("190 mm")))
sketch1.addConstraint(Sketcher.Constraint("DistanceY", 3, 3, -1, 1, Q("20 mm")))
sketch1.addConstraint(Sketcher.Constraint("DistanceY", -1, 1, 44, 3, Q("55 mm")))
sketch1.addConstraint(Sketcher.Constraint("DistanceX", -1, 1, 0, 1, Q("12.5 mm")))
pad1 = body.newObject("PartDesign::Pad", "Pad")
pad1.Profile = sketch1
pad1.Length = 1.9
pad1.Reversed = True

# Sketch on XZ plane
sketch2 = body.newObject("Sketcher::SketchObject", "Sketch001")
sketch2.AttachmentSupport = (doc.getObject("XZ_Plane"), [""])
sketch2.MapMode = "FlatFace"
sketch2.addGeometry(Part.LineSegment(V(-12.5, -24.5, 0), V(-12.5, -22.5, 0)), False)
sketch2.addGeometry(Part.LineSegment(V(-12.5, -22.5, 0), V(-7.071068, -22.5, 0)), False)
sketch2.addGeometry(Part.LineSegment(V(-7.071068, -22.5, 0), V(-7.071068, -24.5, 0)), False)
sketch2.addGeometry(Part.LineSegment(V(-7.071068, -24.5, 0), V(-12.5, -24.5, 0)), False)
sketch2.addGeometry(Part.LineSegment(V(7.071068, -24.5, 0), V(7.071068, -22.5, 0)), False)
sketch2.addGeometry(Part.LineSegment(V(7.071068, -22.5, 0), V(12.5, -22.5, 0)), False)
sketch2.addGeometry(Part.LineSegment(V(12.5, -22.5, 0), V(12.5, -24.5, 0)), False)
sketch2.addGeometry(Part.LineSegment(V(12.5, -24.5, 0), V(7.071068, -24.5, 0)), False)
sketch2.addConstraint(Sketcher.Constraint("Coincident", 0, 2, 1, 1))
sketch2.addConstraint(Sketcher.Constraint("Coincident", 1, 2, 2, 1))
sketch2.addConstraint(Sketcher.Constraint("Coincident", 2, 2, 3, 1))
sketch2.addConstraint(Sketcher.Constraint("Coincident", 3, 2, 0, 1))
sketch2.addConstraint(Sketcher.Constraint("Coincident", 4, 2, 5, 1))
sketch2.addConstraint(Sketcher.Constraint("Coincident", 5, 2, 6, 1))
sketch2.addConstraint(Sketcher.Constraint("Coincident", 6, 2, 7, 1))
sketch2.addConstraint(Sketcher.Constraint("Coincident", 7, 2, 4, 1))
sketch2.addConstraint(Sketcher.Constraint("Vertical", 0))
sketch2.addConstraint(Sketcher.Constraint("Horizontal", 1))
sketch2.addConstraint(Sketcher.Constraint("Vertical", 2))
sketch2.addConstraint(Sketcher.Constraint("Horizontal", 3))
sketch2.addConstraint(Sketcher.Constraint("Vertical", 4))
sketch2.addConstraint(Sketcher.Constraint("Horizontal", 5))
sketch2.addConstraint(Sketcher.Constraint("Vertical", 6))
sketch2.addConstraint(Sketcher.Constraint("Horizontal", 7))
sketch2.addConstraint(Sketcher.Constraint("Symmetric", 1, 2, 4, 2, -2))
sketch2.addConstraint(Sketcher.Constraint("Symmetric", 3, 2, 6, 2, -2))
sketch2.addConstraint(Sketcher.Constraint("DistanceY", 0, 1, 0, 2, Q("2 mm")))
sketch2.addConstraint(Sketcher.Constraint("DistanceX", 0, 2, 5, 2, Q("25 mm")))
sketch2.addConstraint(Sketcher.Constraint("DistanceY", 0, 2, -1, 1, Q("22.5 mm")))
sketch2.addConstraint(Sketcher.Constraint("DistanceX", 1, 1, 1, 2, Q("5.428932 mm")))
pad2 = body.newObject("PartDesign::Pad", "Pad001")
pad2.Profile = sketch2
pad2.Length = 0.95
pad2.Reversed = True

doc.recompute()
